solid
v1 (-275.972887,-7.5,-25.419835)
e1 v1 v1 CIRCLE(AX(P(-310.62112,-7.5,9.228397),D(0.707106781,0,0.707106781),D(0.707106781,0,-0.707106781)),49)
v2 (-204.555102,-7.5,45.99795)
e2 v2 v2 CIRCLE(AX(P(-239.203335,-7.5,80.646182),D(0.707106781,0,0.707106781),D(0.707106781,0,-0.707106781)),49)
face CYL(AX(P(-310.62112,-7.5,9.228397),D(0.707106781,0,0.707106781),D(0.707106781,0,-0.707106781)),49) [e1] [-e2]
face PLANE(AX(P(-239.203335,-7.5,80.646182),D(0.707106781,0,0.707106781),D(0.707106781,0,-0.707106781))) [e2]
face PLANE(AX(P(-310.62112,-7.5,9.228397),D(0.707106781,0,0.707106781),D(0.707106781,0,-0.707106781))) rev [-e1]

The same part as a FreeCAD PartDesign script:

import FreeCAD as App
import Part
import Sketcher

doc = App.newDocument("Part")
params = doc.addObject("Spreadsheet::Sheet", "Params")
for row, (alias, value) in enumerate([
    ("sketch1_diameter", "98 mm"),
    ("pad1_length", "101 mm"),
], start=1):
    params.set(f"A{row}", alias)
    params.set(f"B{row}", "=" + value)
    params.setAlias(f"B{row}", alias)

body = doc.addObject("PartDesign::Body", "Body")

# Sketch on an angled plane
sketch1 = body.newObject("Sketcher::SketchObject", "Sketch")
sketch1.Placement = App.Placement(App.Vector(-79.278576, 0, -79.278576), App.Rotation(App.Vector(0.707106781, 0, -0.707106781), App.Vector(0, 0.999999999, 0), App.Vector(0.707106781, 0, 0.707106781), "ZXY"))
sketch1.addGeometry(Part.Circle(App.Vector(-226, -7, 0), App.Vector(0, 0, 1), 49), False)
sketch1.addConstraint([
    Sketcher.Constraint("Diameter", 0, 98.0),
    Sketcher.Constraint("DistanceY", 0, 3, -1, 1, 7.5),
    Sketcher.Constraint("DistanceX", 0, 3, -1, 1, 226.167762),
])
sketch1.setExpression("Constraints[0]", "Params.sketch1_diameter")
pad1 = body.newObject("PartDesign::Pad", "Pad")
pad1.Profile = sketch1
pad1.setExpression("Length", "Params.pad1_length")
pad1.Reversed = True

doc.recompute()
